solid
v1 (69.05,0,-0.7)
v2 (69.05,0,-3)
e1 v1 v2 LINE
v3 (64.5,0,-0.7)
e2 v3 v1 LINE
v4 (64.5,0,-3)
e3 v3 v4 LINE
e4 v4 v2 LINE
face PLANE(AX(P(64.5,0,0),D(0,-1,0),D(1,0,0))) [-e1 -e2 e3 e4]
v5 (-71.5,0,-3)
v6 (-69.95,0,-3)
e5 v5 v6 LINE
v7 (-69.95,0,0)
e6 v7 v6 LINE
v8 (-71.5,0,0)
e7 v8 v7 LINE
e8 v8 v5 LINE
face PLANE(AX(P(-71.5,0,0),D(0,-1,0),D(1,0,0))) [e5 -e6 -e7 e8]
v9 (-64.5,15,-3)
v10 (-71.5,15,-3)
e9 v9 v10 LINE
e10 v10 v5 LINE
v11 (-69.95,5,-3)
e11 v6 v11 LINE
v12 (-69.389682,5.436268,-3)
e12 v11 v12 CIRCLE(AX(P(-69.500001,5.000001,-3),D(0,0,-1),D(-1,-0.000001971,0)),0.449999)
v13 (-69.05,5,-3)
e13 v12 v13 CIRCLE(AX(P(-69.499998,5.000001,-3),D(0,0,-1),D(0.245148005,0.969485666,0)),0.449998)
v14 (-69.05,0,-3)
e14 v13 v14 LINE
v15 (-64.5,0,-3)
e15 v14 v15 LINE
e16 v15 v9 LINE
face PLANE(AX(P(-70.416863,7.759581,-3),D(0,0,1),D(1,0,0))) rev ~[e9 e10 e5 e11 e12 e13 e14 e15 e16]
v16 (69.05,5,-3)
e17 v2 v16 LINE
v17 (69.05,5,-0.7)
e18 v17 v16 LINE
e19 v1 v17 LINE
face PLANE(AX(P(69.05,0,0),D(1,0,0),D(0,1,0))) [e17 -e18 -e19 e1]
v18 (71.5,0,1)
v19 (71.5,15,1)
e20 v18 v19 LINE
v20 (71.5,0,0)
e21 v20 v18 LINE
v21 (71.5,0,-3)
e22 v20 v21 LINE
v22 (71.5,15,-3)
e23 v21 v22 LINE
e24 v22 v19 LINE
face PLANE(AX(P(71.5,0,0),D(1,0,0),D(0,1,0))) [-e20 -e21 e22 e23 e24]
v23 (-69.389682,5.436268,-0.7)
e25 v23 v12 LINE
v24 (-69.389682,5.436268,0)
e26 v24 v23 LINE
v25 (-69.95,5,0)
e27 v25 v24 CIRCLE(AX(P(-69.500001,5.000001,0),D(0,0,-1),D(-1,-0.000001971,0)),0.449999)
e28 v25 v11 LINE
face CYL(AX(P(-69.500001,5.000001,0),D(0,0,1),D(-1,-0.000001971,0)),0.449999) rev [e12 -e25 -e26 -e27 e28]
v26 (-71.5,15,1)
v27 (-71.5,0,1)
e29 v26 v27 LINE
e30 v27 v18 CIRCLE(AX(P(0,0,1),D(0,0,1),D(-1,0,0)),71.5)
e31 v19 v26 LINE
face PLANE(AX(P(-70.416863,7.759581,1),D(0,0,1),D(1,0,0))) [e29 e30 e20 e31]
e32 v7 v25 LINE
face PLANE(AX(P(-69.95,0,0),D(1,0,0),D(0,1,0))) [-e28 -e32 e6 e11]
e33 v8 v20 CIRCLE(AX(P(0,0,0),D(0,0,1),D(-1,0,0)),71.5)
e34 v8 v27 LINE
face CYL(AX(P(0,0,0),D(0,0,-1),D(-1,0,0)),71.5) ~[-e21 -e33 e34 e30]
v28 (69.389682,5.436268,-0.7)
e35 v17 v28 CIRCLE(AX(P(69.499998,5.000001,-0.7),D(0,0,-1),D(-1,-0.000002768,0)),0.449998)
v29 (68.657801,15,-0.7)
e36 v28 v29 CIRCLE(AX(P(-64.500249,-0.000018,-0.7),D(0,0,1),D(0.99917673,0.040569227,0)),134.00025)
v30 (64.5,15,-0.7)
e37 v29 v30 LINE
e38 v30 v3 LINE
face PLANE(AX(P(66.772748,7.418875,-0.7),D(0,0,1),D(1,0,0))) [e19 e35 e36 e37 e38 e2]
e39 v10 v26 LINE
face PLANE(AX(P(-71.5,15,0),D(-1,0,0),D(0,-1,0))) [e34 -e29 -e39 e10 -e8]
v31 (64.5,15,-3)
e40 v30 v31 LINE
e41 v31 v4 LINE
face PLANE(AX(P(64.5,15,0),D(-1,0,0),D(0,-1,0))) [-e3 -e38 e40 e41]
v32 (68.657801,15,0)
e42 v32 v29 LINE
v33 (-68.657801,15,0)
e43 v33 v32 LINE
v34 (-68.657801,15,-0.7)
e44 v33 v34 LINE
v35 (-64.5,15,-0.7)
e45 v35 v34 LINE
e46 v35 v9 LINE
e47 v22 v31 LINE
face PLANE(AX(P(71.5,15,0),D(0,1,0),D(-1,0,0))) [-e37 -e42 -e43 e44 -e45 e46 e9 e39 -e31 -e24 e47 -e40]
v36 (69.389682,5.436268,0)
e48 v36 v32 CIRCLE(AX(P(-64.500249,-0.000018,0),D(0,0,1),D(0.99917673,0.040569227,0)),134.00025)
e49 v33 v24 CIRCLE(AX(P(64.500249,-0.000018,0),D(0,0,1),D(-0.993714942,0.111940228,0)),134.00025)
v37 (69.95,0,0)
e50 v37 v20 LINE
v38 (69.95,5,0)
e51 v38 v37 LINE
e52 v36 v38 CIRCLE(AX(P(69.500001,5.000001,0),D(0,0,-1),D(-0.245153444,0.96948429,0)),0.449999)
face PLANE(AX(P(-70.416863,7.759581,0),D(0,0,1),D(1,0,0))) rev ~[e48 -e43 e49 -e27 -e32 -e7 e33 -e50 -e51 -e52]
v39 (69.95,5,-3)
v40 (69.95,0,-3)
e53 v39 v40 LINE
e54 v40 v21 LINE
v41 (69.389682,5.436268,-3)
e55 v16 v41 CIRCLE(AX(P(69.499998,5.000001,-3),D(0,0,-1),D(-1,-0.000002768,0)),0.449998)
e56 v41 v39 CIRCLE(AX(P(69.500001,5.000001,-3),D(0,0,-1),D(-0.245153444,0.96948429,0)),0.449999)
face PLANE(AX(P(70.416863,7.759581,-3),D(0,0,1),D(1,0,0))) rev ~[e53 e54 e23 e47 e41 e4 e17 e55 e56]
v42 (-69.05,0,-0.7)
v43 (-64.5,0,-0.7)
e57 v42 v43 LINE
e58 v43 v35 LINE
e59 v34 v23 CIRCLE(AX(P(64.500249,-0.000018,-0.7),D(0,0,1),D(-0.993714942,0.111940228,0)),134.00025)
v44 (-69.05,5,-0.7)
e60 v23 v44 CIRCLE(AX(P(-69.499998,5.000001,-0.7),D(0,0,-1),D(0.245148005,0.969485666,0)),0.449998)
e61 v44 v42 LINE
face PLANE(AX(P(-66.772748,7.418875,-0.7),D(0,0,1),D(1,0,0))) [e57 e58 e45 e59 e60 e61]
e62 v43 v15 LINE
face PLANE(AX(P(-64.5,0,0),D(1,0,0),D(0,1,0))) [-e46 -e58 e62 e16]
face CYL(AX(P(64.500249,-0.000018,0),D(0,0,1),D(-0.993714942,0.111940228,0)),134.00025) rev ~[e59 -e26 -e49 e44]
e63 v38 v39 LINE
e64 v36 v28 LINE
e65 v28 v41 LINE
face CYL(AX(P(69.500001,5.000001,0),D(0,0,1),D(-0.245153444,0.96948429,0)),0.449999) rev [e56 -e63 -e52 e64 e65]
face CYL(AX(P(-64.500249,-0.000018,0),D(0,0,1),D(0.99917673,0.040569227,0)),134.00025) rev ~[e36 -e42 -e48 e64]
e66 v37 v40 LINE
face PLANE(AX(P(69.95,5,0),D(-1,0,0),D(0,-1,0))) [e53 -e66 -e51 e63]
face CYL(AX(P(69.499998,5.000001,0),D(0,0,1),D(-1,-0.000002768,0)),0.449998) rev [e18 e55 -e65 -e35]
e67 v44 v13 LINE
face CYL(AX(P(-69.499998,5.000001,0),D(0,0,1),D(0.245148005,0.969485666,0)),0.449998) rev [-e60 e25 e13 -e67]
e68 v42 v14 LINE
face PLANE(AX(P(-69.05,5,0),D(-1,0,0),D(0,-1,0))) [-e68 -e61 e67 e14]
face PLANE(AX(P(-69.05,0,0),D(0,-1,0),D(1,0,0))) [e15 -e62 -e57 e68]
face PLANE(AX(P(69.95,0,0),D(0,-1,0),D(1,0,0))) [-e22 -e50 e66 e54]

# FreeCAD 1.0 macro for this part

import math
import FreeCAD as App
import Part
import Sketcher
Q = App.Units.Quantity

doc = App.newDocument("Part")
body = doc.addObject("PartDesign::Body", "Body")

sketch1 = doc.addObject("Sketcher::SketchObject", "Sketch")
body.addObject(sketch1)
sketch1.AttachmentSupport = (doc.XY_Plane, [""])
sketch1.MapMode = "FlatFace"
sketch1.addGeometry([
    Part.LineSegment(App.Vector(-71.5, 15, 0), App.Vector(-71.5, 0, 0)),
    Part.ArcOfCircle(Part.Circle(App.Vector(0, 0, 0), App.Vector(0, 0, 1), 71.5), math.radians(180), math.radians(360)),
    Part.LineSegment(App.Vector(71.5, 0, 0), App.Vector(71.5, 15, 0)),
    Part.LineSegment(App.Vector(71.5, 15, 0), App.Vector(-71.5, 15, 0)),
], False)
sketch1.addConstraint([
    Sketcher.Constraint("Tangent", 0, 2, 1, 1),
    Sketcher.Constraint("Tangent", 1, 2, 2, 1),
    Sketcher.Constraint("Coincident", 2, 2, 3, 1),
    Sketcher.Constraint("Coincident", 3, 2, 0, 1),
    Sketcher.Constraint("Vertical", 0),
    Sketcher.Constraint("Vertical", 2),
    Sketcher.Constraint("Horizontal", 3),
    Sketcher.Constraint("Coincident", 1, 3, -1, 1),
    Sketcher.Constraint("Radius", 1, Q("71.5 mm")),
    Sketcher.Constraint("DistanceY", 0, 2, 0, 1, Q("15 mm")),
])
pad1 = doc.addObject("PartDesign::Pad", "Pad")
body.addObject(pad1)
pad1.Profile = sketch1
pad1.Length = 1

sketch2 = doc.addObject("Sketcher::SketchObject", "Sketch001")
body.addObject(sketch2)
sketch2.AttachmentSupport = (doc.XY_Plane, [""])
sketch2.MapMode = "FlatFace"
sketch2.addGeometry([
    Part.LineSegment(App.Vector(69.95, 0, 0), App.Vector(71.5, 0, 0)),
    Part.LineSegment(App.Vector(71.5, 0, 0), App.Vector(71.5, 15, 0)),
    Part.LineSegment(App.Vector(71.5, 15, 0), App.Vector(64.5, 15, 0)),
    Part.LineSegment(App.Vector(64.5, 15, 0), App.Vector(64.5, 0, 0)),
    Part.LineSegment(App.Vector(64.5, 0, 0), App.Vector(69.05, 0, 0)),
    Part.LineSegment(App.Vector(69.05, 0, 0), App.Vector(69.05, 5, 0)),
    Part.ArcOfCircle(Part.Circle(App.Vector(69.499998, 5.000001, 0), App.Vector(0, 0, 1), 0.449998), math.radians(104.190581), math.radians(180.000159)),
    Part.ArcOfCircle(Part.Circle(App.Vector(69.500001, 5.000001, 0), App.Vector(0, 0, 1), 0.449999), math.radians(-0.000113), math.radians(104.190902)),
    Part.LineSegment(App.Vector(69.95, 5, 0), App.Vector(69.95, 0, 0)),
    Part.ArcOfCircle(Part.Circle(App.Vector(-69.500001, 5.000001, 0), App.Vector(0, 0, 1), 0.449999), math.radians(75.809098), math.radians(180.000113)),
    Part.ArcOfCircle(Part.Circle(App.Vector(-69.499998, 5.000001, 0), App.Vector(0, 0, 1), 0.449998), math.radians(-0.000159), math.radians(75.809419)),
    Part.LineSegment(App.Vector(-69.05, 5, 0), App.Vector(-69.05, 0, 0)),
    Part.LineSegment(App.Vector(-69.05, 0, 0), App.Vector(-64.5, 0, 0)),
    Part.LineSegment(App.Vector(-64.5, 0, 0), App.Vector(-64.5, 15, 0)),
    Part.LineSegment(App.Vector(-64.5, 15, 0), App.Vector(-71.5, 15, 0)),
    Part.LineSegment(App.Vector(-71.5, 15, 0), App.Vector(-71.5, 0, 0)),
    Part.LineSegment(App.Vector(-71.5, 0, 0), App.Vector(-69.95, 0, 0)),
    Part.LineSegment(App.Vector(-69.95, 0, 0), App.Vector(-69.95, 5, 0)),
], False)
sketch2.addConstraint([
    Sketcher.Constraint("Coincident", 0, 2, 1, 1),
    Sketcher.Constraint("Coincident", 1, 2, 2, 1),
    Sketcher.Constraint("Coincident", 2, 2, 3, 1),
    Sketcher.Constraint("Coincident", 3, 2, 4, 1),
    Sketcher.Constraint("Coincident", 4, 2, 5, 1),
    Sketcher.Constraint("Coincident", 5, 2, 6, 2),
    Sketcher.Constraint("Coincident", 6, 1, 7, 2),
    Sketcher.Constraint("Tangent", 7, 1, 8, 1),
    Sketcher.Constraint("Coincident", 8, 2, 0, 1),
    Sketcher.Constraint("Coincident", 9, 1, 10, 2),
    Sketcher.Constraint("Coincident", 10, 1, 11, 1),
    Sketcher.Constraint("Coincident", 11, 2, 12, 1),
    Sketcher.Constraint("Coincident", 12, 2, 13, 1),
    Sketcher.Constraint("Coincident", 13, 2, 14, 1),
    Sketcher.Constraint("Coincident", 14, 2, 15, 1),
    Sketcher.Constraint("Coincident", 15, 2, 16, 1),
    Sketcher.Constraint("Coincident", 16, 2, 17, 1),
    Sketcher.Constraint("Tangent", 17, 2, 9, 2),
    Sketcher.Constraint("Horizontal", 0),
    Sketcher.Constraint("Vertical", 1),
    Sketcher.Constraint("Horizontal", 2),
    Sketcher.Constraint("Vertical", 3),
    Sketcher.Constraint("Horizontal", 4),
    Sketcher.Constraint("Vertical", 5),
    Sketcher.Constraint("Vertical", 8),
    Sketcher.Constraint("Vertical", 11),
    Sketcher.Constraint("Horizontal", 12),
    Sketcher.Constraint("Vertical", 13),
    Sketcher.Constraint("Horizontal", 14),
    Sketcher.Constraint("Vertical", 15),
    Sketcher.Constraint("Horizontal", 16),
    Sketcher.Constraint("Vertical", 17),
    Sketcher.Constraint("Coincident", 7, 3, 6, 3),
    Sketcher.Constraint("Coincident", 10, 3, 9, 3),
    Sketcher.Constraint("Equal", 7, 9),
    Sketcher.Constraint("Symmetric", 4, 2, 11, 2, -1, 1),
    Sketcher.Constraint("Symmetric", 0, 2, 15, 2, -1, 1),
    Sketcher.Constraint("Symmetric", 6, 1, 9, 1, -2),
    Sketcher.Constraint("Symmetric", 3, 2, 12, 2, -2),
    Sketcher.Constraint("PointOnObject", 0, 2, -1),
    Sketcher.Constraint("Horizontal", 10, 3, 5, 2),
    Sketcher.Constraint("Horizontal", 7, 1, 10, 1),
    Sketcher.Constraint("Horizontal", 2, 2, 13, 2),
    Sketcher.Constraint("DistanceX", 2, 2, 2, 1, Q("7 mm")),
    Sketcher.Constraint("DistanceY", 1, 1, 1, 2, Q("15 mm")),
    Sketcher.Constraint("DistanceY", 5, 1, 5, 2, Q("5 mm")),
    Sketcher.Constraint("Radius", 6, Q("0.449998 mm")),
    Sketcher.Constraint("DistanceX", 9, 3, 6, 3, Q("138.999999 mm")),
    Sketcher.Constraint("DistanceX", 7, 3, 0, 2, Q("1.999999 mm")),
    Sketcher.Constraint("DistanceX", -1, 1, 6, 1, Q("69.389682 mm")),
])
pad2 = doc.addObject("PartDesign::Pad", "Pad001")
body.addObject(pad2)
pad2.Profile = sketch2
pad2.Length = 3
pad2.Reversed = True

sketch3 = doc.addObject("Sketcher::SketchObject", "Sketch002")
body.addObject(sketch3)
sketch3.AttachmentSupport = (doc.XY_Plane, [""])
sketch3.MapMode = "FlatFace"
sketch3.addGeometry([
    Part.ArcOfCircle(Part.Circle(App.Vector(64.500249, -0.000018, 0), App.Vector(0, 0, 1), 134.00025), math.radians(173.572827), math.radians(177.674916)),
    Part.ArcOfCircle(Part.Circle(App.Vector(-69.499998, 5.000001, 0), App.Vector(0, 0, 1), 0.449998), math.radians(-0.000159), math.radians(75.809419)),
    Part.LineSegment(App.Vector(-69.05, 5, 0), App.Vector(-69.05, 0, 0)),
    Part.LineSegment(App.Vector(-69.05, 0, 0), App.Vector(-64.5, 0, 0)),
    Part.LineSegment(App.Vector(-64.5, 0, 0), App.Vector(-64.5, 15, 0)),
    Part.LineSegment(App.Vector(-64.5, 15, 0), App.Vector(-68.657801, 15, 0)),
    Part.LineSegment(App.Vector(68.657801, 15, 0), App.Vector(64.5, 15, 0)),
    Part.LineSegment(App.Vector(64.5, 15, 0), App.Vector(64.5, 0, 0)),
    Part.LineSegment(App.Vector(64.5, 0, 0), App.Vector(69.05, 0, 0)),
    Part.LineSegment(App.Vector(69.05, 0, 0), App.Vector(69.05, 5, 0)),
    Part.ArcOfCircle(Part.Circle(App.Vector(69.499998, 5.000001, 0), App.Vector(0, 0, 1), 0.449998), math.radians(104.190581), math.radians(180.000159)),
    Part.ArcOfCircle(Part.Circle(App.Vector(-64.500249, -0.000018, 0), App.Vector(0, 0, 1), 134.00025), math.radians(2.325084), math.radians(6.427173)),
], False)
sketch3.addConstraint([
    Sketcher.Constraint("Coincident", 0, 2, 1, 2),
    Sketcher.Constraint("Coincident", 1, 1, 2, 1),
    Sketcher.Constraint("Coincident", 2, 2, 3, 1),
    Sketcher.Constraint("Coincident", 3, 2, 4, 1),
    Sketcher.Constraint("Coincident", 4, 2, 5, 1),
    Sketcher.Constraint("Coincident", 5, 2, 0, 1),
    Sketcher.Constraint("Coincident", 6, 2, 7, 1),
    Sketcher.Constraint("Coincident", 7, 2, 8, 1),
    Sketcher.Constraint("Coincident", 8, 2, 9, 1),
    Sketcher.Constraint("Coincident", 9, 2, 10, 2),
    Sketcher.Constraint("Coincident", 10, 1, 11, 1),
    Sketcher.Constraint("Coincident", 11, 2, 6, 1),
    Sketcher.Constraint("Vertical", 2),
    Sketcher.Constraint("Horizontal", 3),
    Sketcher.Constraint("Vertical", 4),
    Sketcher.Constraint("Horizontal", 5),
    Sketcher.Constraint("Horizontal", 6),
    Sketcher.Constraint("Vertical", 7),
    Sketcher.Constraint("Horizontal", 8),
    Sketcher.Constraint("Vertical", 9),
    Sketcher.Constraint("Equal", 1, 10),
    Sketcher.Constraint("Equal", 0, 11),
    Sketcher.Constraint("Symmetric", 3, 2, 7, 2, -1, 1),
    Sketcher.Constraint("Symmetric", 1, 3, 10, 3, -2),
    Sketcher.Constraint("Symmetric", 0, 3, 11, 3, -2),
    Sketcher.Constraint("PointOnObject", 2, 2, -1),
    Sketcher.Constraint("Horizontal", 10, 3, 1, 1),
    Sketcher.Constraint("Horizontal", 5, 2, 6, 2),
    Sketcher.Constraint("Horizontal", 1, 1, 9, 2),
    Sketcher.Constraint("DistanceY", 2, 2, 2, 1, Q("5 mm")),
    Sketcher.Constraint("DistanceY", 4, 1, 4, 2, Q("15 mm")),
    Sketcher.Constraint("Radius", 1, Q("0.449998 mm")),
    Sketcher.Constraint("DistanceX", 1, 3, 3, 2, Q("4.999998 mm")),
    Sketcher.Constraint("DistanceX", 4, 2, 6, 2, Q("129 mm")),
    Sketcher.Constraint("Radius", 0, Q("134.00025 mm")),
    Sketcher.Constraint("DistanceX", 5, 2, 5, 1, Q("4.157801 mm")),
    Sketcher.Constraint("DistanceX", 11, 3, 0, 3, Q("129.000498 mm")),
])
pocket1 = doc.addObject("PartDesign::Pocket", "Pocket")
body.addObject(pocket1)
pocket1.Profile = sketch3
pocket1.Length = 0.7

doc.recompute()
